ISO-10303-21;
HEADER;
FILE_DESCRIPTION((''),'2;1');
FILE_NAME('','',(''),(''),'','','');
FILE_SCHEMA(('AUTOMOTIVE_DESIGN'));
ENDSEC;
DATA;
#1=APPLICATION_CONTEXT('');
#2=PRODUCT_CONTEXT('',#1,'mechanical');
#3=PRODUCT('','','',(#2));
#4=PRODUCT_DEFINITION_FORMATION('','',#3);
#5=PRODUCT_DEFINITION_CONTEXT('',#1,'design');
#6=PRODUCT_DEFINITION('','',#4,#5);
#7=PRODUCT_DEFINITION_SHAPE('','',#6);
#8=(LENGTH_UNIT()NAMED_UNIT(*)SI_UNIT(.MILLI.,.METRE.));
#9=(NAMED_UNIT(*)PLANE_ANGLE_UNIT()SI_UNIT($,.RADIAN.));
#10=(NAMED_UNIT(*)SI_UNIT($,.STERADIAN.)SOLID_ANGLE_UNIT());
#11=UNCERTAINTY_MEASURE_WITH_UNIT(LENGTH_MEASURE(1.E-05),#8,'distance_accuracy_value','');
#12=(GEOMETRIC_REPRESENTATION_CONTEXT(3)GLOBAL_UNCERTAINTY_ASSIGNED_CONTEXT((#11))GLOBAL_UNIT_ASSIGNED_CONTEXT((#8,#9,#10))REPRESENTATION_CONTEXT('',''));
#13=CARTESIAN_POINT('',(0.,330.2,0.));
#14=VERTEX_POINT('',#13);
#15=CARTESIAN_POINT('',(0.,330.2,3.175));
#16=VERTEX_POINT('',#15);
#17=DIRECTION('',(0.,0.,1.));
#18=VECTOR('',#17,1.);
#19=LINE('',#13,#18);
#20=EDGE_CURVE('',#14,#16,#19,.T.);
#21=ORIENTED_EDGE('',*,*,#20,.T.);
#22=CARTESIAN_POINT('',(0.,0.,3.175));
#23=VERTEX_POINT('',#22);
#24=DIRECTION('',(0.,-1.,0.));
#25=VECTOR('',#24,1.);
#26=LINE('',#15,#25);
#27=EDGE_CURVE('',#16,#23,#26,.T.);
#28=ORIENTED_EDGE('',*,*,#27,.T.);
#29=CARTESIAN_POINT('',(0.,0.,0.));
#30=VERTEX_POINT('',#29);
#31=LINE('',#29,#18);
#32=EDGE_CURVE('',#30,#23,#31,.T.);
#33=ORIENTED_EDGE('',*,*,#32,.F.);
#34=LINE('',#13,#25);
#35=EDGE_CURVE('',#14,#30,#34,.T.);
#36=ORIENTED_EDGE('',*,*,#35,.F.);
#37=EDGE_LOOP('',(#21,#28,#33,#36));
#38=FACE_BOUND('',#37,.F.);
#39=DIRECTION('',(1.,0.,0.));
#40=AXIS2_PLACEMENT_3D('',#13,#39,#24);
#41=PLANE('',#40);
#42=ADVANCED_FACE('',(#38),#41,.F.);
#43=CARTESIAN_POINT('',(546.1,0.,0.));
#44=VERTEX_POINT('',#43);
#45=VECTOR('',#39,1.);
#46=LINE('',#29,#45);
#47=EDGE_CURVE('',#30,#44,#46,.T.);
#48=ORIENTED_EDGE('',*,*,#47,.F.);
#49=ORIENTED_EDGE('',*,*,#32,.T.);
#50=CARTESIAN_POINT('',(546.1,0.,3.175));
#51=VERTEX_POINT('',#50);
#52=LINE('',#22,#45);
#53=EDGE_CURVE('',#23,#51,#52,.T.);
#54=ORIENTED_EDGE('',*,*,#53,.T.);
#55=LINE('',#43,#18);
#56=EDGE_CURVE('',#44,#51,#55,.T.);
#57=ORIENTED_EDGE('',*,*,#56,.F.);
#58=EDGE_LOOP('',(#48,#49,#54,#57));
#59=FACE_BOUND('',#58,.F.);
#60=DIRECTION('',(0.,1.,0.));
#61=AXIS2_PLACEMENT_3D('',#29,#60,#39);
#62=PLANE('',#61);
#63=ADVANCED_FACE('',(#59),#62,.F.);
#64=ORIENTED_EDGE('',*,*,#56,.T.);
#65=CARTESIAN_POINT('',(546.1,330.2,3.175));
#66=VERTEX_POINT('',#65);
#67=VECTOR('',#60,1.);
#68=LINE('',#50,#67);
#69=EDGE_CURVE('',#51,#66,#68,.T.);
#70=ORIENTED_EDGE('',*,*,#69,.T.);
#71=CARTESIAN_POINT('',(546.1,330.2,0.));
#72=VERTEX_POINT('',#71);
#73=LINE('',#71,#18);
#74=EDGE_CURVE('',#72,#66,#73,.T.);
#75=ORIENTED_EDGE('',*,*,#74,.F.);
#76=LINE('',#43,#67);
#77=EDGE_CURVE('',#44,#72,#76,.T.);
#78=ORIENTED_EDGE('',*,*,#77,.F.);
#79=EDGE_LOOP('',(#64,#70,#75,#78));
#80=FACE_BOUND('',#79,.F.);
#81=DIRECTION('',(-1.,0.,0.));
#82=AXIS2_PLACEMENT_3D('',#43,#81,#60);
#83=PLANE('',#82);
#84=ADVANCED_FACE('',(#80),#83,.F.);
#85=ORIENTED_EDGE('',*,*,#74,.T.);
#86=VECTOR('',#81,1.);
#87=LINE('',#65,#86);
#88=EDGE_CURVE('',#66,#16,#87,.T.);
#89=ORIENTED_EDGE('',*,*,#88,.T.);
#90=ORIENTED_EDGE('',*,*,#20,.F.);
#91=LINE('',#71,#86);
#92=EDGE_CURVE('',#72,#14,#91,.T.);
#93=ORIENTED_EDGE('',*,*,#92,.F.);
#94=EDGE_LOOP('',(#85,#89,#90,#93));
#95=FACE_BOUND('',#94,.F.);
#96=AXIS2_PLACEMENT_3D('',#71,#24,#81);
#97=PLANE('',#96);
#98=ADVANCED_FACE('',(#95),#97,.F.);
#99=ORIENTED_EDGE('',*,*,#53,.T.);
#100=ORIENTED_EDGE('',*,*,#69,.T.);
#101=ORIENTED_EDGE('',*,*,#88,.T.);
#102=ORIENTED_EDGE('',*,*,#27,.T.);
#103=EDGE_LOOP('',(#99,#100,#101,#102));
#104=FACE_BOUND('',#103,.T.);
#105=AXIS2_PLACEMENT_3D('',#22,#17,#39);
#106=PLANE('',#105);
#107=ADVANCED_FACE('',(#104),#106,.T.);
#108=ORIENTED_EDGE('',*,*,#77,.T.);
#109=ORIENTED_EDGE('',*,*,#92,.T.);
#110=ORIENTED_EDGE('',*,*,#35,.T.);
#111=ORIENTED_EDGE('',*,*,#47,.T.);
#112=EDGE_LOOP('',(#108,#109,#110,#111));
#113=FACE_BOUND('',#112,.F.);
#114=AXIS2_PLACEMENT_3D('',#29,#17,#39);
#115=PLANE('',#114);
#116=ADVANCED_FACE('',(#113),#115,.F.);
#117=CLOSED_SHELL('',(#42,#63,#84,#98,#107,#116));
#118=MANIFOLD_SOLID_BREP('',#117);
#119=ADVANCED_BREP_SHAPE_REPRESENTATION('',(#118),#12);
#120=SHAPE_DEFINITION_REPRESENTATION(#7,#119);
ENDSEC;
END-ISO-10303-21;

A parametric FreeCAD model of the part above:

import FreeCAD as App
import Part
import Sketcher
from FreeCAD import Vector
Q = App.Units.Quantity

doc = App.newDocument("Part")
body = doc.addObject("PartDesign::Body", "Body")

sketch1 = doc.addObject("Sketcher::SketchObject", "Sketch")
body.addObject(sketch1)
sketch1.AttachmentSupport = (doc.XY_Plane, [""])
sketch1.MapMode = "FlatFace"
sketch1.addGeometry([
    Part.LineSegment(Vector(0, 330.2, 0), Vector(0, 0, 0)),
    Part.LineSegment(Vector(0, 0, 0), Vector(546.1, 0, 0)),
    Part.LineSegment(Vector(546.1, 0, 0), Vector(546.1, 330.2, 0)),
    Part.LineSegment(Vector(546.1, 330.2, 0), Vector(0, 330.2, 0)),
], False)
sketch1.addConstraint([
    Sketcher.Constraint("Coincident", 0, 2, 1, 1),
    Sketcher.Constraint("Coincident", 1, 2, 2, 1),
    Sketcher.Constraint("Coincident", 2, 2, 3, 1),
    Sketcher.Constraint("Coincident", 3, 2, 0, 1),
    Sketcher.Constraint("Vertical", 0),
    Sketcher.Constraint("Horizontal", 1),
    Sketcher.Constraint("Vertical", 2),
    Sketcher.Constraint("Horizontal", 3),
    Sketcher.Constraint("Coincident", 0, 2, -1, 1),
    Sketcher.Constraint("DistanceY", 0, 2, 0, 1, Q("13 in")),
    Sketcher.Constraint("DistanceX", 1, 1, 1, 2, Q("21.5 in")),
])
pad1 = doc.addObject("PartDesign::Pad", "Pad")
body.addObject(pad1)
pad1.Profile = sketch1
pad1.Length = Q("0.125 in")

doc.recompute()
